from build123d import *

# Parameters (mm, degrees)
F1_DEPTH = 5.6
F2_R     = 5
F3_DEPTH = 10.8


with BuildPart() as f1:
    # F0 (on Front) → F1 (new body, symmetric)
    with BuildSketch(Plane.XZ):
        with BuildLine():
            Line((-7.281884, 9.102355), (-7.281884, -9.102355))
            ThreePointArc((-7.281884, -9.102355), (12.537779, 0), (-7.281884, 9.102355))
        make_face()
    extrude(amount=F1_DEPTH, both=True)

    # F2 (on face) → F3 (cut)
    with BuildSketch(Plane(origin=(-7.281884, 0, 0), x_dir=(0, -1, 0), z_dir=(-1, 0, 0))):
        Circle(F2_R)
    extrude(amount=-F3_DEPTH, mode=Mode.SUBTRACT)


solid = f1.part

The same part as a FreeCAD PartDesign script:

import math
import FreeCAD as App
import Part
import Sketcher
from FreeCAD import Vector
Q = App.Units.Quantity

doc = App.newDocument("Part")
params = doc.addObject("Spreadsheet::Sheet", "Params")
for row, (alias, value) in enumerate([
    ("sketch1_radius", "12 mm"),
    ("pad1_length", "11.2 mm"),
    ("sketch2_diameter", "10 mm"),
    ("pocket1_length", "10.8 mm"),
], start=1):
    params.set(f"A{row}", alias)
    params.set(f"B{row}", "=" + value)
    params.setAlias(f"B{row}", alias)

body = doc.addObject("PartDesign::Body", "Body")

sketch1 = body.newObject("Sketcher::SketchObject", "Sketch")
sketch1.AttachmentSupport = (doc.getObject("XZ_Plane"), [""])
sketch1.MapMode = "FlatFace"
sketch1.addGeometry([
    Part.LineSegment(Vector(-7.281884, 9.102355, 0), Vector(-7.281884, -9.102355, 0)),
    Part.ArcOfCircle(Part.Circle(Vector(0.537779, 0, 0), Vector(0, 0, 1), 12), math.radians(-130.665259), math.radians(130.665259)),
], False)
sketch1.addConstraint([
    Sketcher.Constraint("Coincident", 0, 1, 1, 2),
    Sketcher.Constraint("Coincident", 1, 1, 0, 2),
    Sketcher.Constraint("Vertical", 0),
    Sketcher.Constraint("PointOnObject", 1, 3, -1),
    Sketcher.Constraint("Radius", 1, Q("12 mm")),
    Sketcher.Constraint("DistanceY", 0, 2, 0, 1, Q("18.20471 mm")),
    Sketcher.Constraint("DistanceX", -1, 1, 1, 3, Q("0.537779 mm")),
])
sketch1.setExpression("Constraints[4]", "Params.sketch1_radius")
pad1 = body.newObject("PartDesign::Pad", "Pad")
pad1.Profile = sketch1
pad1.setExpression("Length", "Params.pad1_length")
pad1.Midplane = True

sketch2 = body.newObject("Sketcher::SketchObject", "Sketch001")
sketch2.AttachmentSupport = (doc.getObject("YZ_Plane"), [""])
sketch2.MapMode = "FlatFace"
sketch2.AttachmentOffset = App.Placement(Vector(0, 0, -7.281884), App.Rotation())
sketch2.addGeometry(Part.Circle(Vector(0, 0, 0), Vector(0, 0, 1), 5), False)
sketch2.addConstraint([
    Sketcher.Constraint("Coincident", 0, 3, -1, 1),
    Sketcher.Constraint("Diameter", 0, Q("10 mm")),
])
sketch2.setExpression("Constraints[1]", "Params.sketch2_diameter")
pocket1 = body.newObject("PartDesign::Pocket", "Pocket")
pocket1.Profile = sketch2
pocket1.setExpression("Length", "Params.pocket1_length")
pocket1.Reversed = True

doc.recompute()
